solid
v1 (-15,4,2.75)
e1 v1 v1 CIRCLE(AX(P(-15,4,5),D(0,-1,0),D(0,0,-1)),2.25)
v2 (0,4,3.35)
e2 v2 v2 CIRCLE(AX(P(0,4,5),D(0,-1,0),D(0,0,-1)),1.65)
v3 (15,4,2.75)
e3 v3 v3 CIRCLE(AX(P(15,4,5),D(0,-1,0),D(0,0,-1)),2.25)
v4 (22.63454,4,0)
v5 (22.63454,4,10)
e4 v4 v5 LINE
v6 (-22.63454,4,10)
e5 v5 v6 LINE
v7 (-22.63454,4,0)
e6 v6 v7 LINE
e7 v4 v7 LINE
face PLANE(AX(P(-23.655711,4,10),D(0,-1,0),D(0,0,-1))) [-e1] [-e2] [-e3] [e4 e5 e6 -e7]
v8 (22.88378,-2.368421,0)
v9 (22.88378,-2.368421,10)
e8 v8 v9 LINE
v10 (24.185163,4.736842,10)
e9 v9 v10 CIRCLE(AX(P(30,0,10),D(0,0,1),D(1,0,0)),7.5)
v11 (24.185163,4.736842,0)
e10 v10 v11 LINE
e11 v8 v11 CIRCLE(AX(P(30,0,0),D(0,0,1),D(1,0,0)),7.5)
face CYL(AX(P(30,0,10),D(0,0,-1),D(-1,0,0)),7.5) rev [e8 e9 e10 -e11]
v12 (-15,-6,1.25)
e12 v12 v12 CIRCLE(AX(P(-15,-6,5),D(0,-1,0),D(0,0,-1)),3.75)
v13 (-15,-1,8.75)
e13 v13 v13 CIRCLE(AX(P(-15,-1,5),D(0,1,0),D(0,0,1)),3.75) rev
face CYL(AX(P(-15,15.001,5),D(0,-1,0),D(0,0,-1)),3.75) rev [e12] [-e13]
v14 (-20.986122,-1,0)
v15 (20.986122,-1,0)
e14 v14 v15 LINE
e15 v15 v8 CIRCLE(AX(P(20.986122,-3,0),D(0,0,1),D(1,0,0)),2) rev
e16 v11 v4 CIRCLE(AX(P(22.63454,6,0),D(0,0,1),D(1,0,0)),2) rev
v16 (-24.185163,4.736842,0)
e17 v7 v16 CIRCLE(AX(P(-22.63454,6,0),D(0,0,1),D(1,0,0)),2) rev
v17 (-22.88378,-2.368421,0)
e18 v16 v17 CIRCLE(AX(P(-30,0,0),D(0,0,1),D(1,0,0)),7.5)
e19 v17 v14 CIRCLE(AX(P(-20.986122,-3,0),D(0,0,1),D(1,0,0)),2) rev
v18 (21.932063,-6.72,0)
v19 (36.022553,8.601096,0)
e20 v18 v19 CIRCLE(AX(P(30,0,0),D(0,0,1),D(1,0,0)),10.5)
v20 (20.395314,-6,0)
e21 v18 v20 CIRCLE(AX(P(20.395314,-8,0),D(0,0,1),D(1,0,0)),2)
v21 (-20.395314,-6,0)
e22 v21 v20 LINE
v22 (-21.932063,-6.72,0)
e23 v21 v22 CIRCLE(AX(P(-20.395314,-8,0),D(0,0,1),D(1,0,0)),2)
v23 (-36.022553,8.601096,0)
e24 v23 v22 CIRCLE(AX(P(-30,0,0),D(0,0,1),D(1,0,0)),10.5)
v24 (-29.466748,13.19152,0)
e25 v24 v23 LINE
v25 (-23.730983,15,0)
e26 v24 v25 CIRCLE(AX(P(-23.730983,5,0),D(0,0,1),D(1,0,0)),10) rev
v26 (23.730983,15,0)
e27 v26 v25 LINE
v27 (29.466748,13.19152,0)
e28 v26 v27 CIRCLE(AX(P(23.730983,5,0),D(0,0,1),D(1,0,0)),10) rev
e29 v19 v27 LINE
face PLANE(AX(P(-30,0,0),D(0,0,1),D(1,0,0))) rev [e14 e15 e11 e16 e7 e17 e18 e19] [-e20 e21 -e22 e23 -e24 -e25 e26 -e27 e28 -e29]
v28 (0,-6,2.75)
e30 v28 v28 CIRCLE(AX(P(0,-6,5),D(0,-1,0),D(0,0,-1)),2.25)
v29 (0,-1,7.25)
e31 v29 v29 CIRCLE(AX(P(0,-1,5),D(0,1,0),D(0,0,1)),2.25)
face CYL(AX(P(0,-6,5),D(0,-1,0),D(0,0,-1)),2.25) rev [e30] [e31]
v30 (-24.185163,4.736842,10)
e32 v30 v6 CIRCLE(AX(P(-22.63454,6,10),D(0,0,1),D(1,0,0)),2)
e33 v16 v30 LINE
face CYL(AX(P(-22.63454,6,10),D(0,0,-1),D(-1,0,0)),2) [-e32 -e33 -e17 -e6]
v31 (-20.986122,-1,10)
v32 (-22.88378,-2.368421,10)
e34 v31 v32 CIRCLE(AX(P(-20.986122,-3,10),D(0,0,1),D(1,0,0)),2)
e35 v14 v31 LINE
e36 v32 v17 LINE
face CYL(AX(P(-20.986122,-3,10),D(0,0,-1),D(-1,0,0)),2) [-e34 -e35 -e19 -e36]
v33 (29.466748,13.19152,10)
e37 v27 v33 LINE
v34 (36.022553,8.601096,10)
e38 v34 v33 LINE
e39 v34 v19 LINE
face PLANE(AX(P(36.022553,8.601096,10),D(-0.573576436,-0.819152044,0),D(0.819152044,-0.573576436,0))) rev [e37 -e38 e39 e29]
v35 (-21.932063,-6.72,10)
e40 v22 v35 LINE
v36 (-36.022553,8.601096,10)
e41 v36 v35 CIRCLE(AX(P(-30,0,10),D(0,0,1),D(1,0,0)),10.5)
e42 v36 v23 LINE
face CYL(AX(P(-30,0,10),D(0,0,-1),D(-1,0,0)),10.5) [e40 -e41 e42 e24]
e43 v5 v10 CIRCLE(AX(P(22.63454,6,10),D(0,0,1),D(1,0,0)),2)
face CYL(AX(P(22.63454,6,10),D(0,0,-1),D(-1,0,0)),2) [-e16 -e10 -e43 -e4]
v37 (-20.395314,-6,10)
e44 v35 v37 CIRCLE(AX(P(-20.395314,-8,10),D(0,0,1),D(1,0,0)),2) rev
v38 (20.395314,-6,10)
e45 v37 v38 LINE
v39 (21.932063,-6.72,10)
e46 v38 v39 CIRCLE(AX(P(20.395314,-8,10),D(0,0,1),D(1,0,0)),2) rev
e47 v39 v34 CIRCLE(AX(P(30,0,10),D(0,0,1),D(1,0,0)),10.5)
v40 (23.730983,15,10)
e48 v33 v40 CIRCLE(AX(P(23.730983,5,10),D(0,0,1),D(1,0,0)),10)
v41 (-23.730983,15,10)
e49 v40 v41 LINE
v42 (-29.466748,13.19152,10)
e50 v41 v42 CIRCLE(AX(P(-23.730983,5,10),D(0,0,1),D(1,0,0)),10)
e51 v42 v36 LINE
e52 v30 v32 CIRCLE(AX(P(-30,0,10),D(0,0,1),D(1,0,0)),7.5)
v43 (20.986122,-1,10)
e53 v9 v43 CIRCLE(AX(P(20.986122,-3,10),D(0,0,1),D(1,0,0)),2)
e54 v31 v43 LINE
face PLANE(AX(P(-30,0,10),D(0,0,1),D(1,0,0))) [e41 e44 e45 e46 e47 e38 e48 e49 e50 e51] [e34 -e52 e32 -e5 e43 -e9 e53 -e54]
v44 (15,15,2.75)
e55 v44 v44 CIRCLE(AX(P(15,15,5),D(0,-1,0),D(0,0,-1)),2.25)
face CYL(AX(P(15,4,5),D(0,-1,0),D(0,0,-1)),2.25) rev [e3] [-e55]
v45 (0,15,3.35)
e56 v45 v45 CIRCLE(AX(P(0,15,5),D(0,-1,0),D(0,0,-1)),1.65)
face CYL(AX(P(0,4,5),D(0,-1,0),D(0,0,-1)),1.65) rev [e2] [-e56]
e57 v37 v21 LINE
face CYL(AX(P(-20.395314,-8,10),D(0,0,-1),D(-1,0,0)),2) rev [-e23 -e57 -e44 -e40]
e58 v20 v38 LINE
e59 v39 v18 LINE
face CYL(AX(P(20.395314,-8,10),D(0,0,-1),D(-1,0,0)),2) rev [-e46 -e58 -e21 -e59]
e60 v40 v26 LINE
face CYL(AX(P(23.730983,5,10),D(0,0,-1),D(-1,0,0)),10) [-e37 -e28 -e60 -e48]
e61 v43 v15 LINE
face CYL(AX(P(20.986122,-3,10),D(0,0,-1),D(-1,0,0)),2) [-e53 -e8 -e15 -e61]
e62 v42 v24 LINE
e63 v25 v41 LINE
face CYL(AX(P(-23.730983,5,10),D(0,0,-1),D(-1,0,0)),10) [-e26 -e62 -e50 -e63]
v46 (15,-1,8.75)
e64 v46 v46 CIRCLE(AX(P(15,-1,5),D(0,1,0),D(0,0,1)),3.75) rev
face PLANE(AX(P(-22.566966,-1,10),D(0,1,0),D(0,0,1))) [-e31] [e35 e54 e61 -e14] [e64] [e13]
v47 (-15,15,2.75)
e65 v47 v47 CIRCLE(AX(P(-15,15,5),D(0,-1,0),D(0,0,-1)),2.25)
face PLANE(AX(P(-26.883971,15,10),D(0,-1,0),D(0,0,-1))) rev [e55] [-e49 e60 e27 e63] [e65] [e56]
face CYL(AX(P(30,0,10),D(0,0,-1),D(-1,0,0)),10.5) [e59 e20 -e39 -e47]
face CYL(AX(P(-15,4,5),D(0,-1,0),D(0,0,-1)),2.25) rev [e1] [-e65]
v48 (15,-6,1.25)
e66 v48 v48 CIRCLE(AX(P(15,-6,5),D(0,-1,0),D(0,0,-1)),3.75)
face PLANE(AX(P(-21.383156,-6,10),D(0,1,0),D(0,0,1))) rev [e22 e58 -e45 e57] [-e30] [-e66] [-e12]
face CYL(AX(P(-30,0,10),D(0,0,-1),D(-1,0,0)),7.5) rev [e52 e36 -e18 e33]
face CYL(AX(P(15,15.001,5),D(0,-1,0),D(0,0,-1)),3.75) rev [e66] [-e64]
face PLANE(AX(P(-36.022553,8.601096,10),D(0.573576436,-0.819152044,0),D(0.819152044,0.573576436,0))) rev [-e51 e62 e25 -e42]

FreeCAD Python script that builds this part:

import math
import FreeCAD as App
import Part
import Sketcher

V = App.Vector
Q = App.Units.Quantity


def edges_at(feature, points):
    """Names of the edges that pass closest to the given points."""
    edges = feature.Shape.Edges
    near = lambda p: min(range(len(edges)), key=lambda i: edges[i].distToShape(Part.Vertex(*p))[0])
    return sorted({f"Edge{near(p) + 1}" for p in points})

doc = App.newDocument("Part")
body = doc.addObject("PartDesign::Body", "Body")

# Sketch on XY plane
sketch1 = body.newObject("Sketcher::SketchObject", "Sketch")
sketch1.AttachmentSupport = (doc.getObject("XY_Plane"), [""])
sketch1.MapMode = "FlatFace"
sketch1.addGeometry([
    Part.LineSegment(V(26.883971, 15, 0), V(-26.883971, 15, 0)),  # 0
    Part.LineSegment(V(-26.883971, 15, 0), V(-36.022553, 8.601096, 0)),  # 1
    Part.ArcOfCircle(Part.Circle(V(-30, 0, 0), V(0, 0, 1), 10.5), math.radians(125), math.radians(325.150095)),  # 2
    Part.LineSegment(V(-21.383156, -6, 0), V(21.383156, -6, 0)),  # 3
    Part.ArcOfCircle(Part.Circle(V(30, 0, 0), V(0, 0, 1), 10.5), math.radians(-145.150095), math.radians(55)),  # 4
    Part.LineSegment(V(36.022553, 8.601096, 0), V(26.883971, 15, 0)),  # 5
    Part.LineSegment(V(-23.655711, 4, 0), V(23.655711, 4, 0)),  # 6
    Part.ArcOfCircle(Part.Circle(V(30, 0, 0), V(0, 0, 1), 7.5), math.radians(-172.337744), math.radians(147.769047)),  # 7
    Part.LineSegment(V(22.566966, -1, 0), V(-22.566966, -1, 0)),  # 8
    Part.ArcOfCircle(Part.Circle(V(-30, 0, 0), V(0, 0, 1), 7.5), math.radians(32.230953), math.radians(352.337744)),  # 9
], False)
sketch1.addConstraint([
    Sketcher.Constraint("Coincident", 0, 2, 1, 1),
    Sketcher.Constraint("Tangent", 1, 2, 2, 1),
    Sketcher.Constraint("Coincident", 2, 2, 3, 1),
    Sketcher.Constraint("Coincident", 3, 2, 4, 1),
    Sketcher.Constraint("Tangent", 4, 2, 5, 1),
    Sketcher.Constraint("Coincident", 5, 2, 0, 1),
    Sketcher.Constraint("Coincident", 6, 2, 7, 2),
    Sketcher.Constraint("Coincident", 7, 1, 8, 1),
    Sketcher.Constraint("Coincident", 8, 2, 9, 2),
    Sketcher.Constraint("Coincident", 9, 1, 6, 1),
    Sketcher.Constraint("Horizontal", 0),
    Sketcher.Constraint("Horizontal", 3),
    Sketcher.Constraint("Horizontal", 6),
    Sketcher.Constraint("Horizontal", 8),
    Sketcher.Constraint("Coincident", 7, 3, 4, 3),
    Sketcher.Constraint("Coincident", 9, 3, 2, 3),
    Sketcher.Constraint("Equal", 2, 4),
    Sketcher.Constraint("Equal", 7, 9),
    Sketcher.Constraint("Symmetric", 2, 3, 4, 3, -1, 1),
    Sketcher.Constraint("Symmetric", 1, 2, 4, 2, -2),
    Sketcher.Constraint("Radius", 2, Q("10.5 mm")),
    Sketcher.Constraint("Radius", 7, Q("7.5 mm")),
    Sketcher.Constraint("Angle", 1, Q("-145 deg")),
    Sketcher.Constraint("DistanceX", 2, 3, -1, 1, Q("30 mm")),
    Sketcher.Constraint("DistanceY", -1, 1, 0, 2, Q("15 mm")),
    Sketcher.Constraint("DistanceY", 2, 2, -1, 1, Q("6 mm")),
    Sketcher.Constraint("DistanceY", -1, 1, 6, 2, Q("4 mm")),
    Sketcher.Constraint("DistanceY", 7, 1, -1, 1, Q("1 mm")),
])
pad1 = body.newObject("PartDesign::Pad", "Pad")
pad1.Profile = sketch1
pad1.Length = 10

# Sketch on XZ plane
sketch2 = body.newObject("Sketcher::SketchObject", "Sketch001")
sketch2.AttachmentSupport = (doc.getObject("XZ_Plane"), [""])
sketch2.MapMode = "FlatFace"
sketch2.AttachmentOffset = App.Placement(V(0, 0, 6), App.Rotation())
sketch2.addGeometry(Part.Circle(V(-15, 5, 0), V(0, 0, 1), 3.75), False)
sketch2.addConstraint([
    Sketcher.Constraint("Diameter", 0, Q("7.5 mm")),
    Sketcher.Constraint("DistanceX", 0, 3, -1, 1, Q("15 mm")),
    Sketcher.Constraint("DistanceY", -1, 1, 0, 3, Q("5 mm")),
])
pocket1 = body.newObject("PartDesign::Pocket", "Pocket")
pocket1.Profile = sketch2
pocket1.Type = "UpToFirst"

# Sketch on XZ plane
sketch3 = body.newObject("Sketcher::SketchObject", "Sketch002")
sketch3.AttachmentSupport = (doc.getObject("XZ_Plane"), [""])
sketch3.MapMode = "FlatFace"
sketch3.AttachmentOffset = App.Placement(V(0, 0, 6), App.Rotation())
sketch3.addGeometry(Part.Circle(V(15, 5, 0), V(0, 0, 1), 3.75), False)
sketch3.addConstraint([
    Sketcher.Constraint("Diameter", 0, Q("7.5 mm")),
    Sketcher.Constraint("DistanceX", -1, 1, 0, 3, Q("15 mm")),
    Sketcher.Constraint("DistanceY", -1, 1, 0, 3, Q("5 mm")),
])
pocket2 = body.newObject("PartDesign::Pocket", "Pocket001")
pocket2.Profile = sketch3
pocket2.Type = "UpToFirst"

# Sketch on XZ plane
sketch4 = body.newObject("Sketcher::SketchObject", "Sketch003")
sketch4.AttachmentSupport = (doc.getObject("XZ_Plane"), [""])
sketch4.MapMode = "FlatFace"
sketch4.AttachmentOffset = App.Placement(V(0, 0, -4), App.Rotation())
sketch4.addGeometry([
    Part.Circle(V(15, 5, 0), V(0, 0, 1), 2.25),
    Part.Circle(V(-15, 5, 0), V(0, 0, 1), 2.25),
], False)
sketch4.addConstraint([
    Sketcher.Constraint("Equal", 0, 1),
    Sketcher.Constraint("Symmetric", 0, 3, 1, 3, -2),
    Sketcher.Constraint("Diameter", 0, Q("4.5 mm")),
    Sketcher.Constraint("DistanceX", -1, 1, 0, 3, Q("15 mm")),
    Sketcher.Constraint("DistanceY", -1, 1, 0, 3, Q("5 mm")),
])
doc.recompute()
hole = body.newObject("PartDesign::Hole", "Hole")
hole.Profile = sketch4
hole.ThreadType = "None"
hole.Diameter = 4.5
hole.DepthType = "ThroughAll"

# Sketch on XZ plane
sketch5 = body.newObject("Sketcher::SketchObject", "Sketch004")
sketch5.AttachmentSupport = (doc.getObject("XZ_Plane"), [""])
sketch5.MapMode = "FlatFace"
sketch5.AttachmentOffset = App.Placement(V(0, 0, 6), App.Rotation())
sketch5.addGeometry(Part.Circle(V(0, 5, 0), V(0, 0, 1), 2.25), False)
sketch5.addConstraint([
    Sketcher.Constraint("PointOnObject", 0, 3, -2),
    Sketcher.Constraint("Diameter", 0, Q("4.5 mm")),
    Sketcher.Constraint("DistanceY", -1, 1, 0, 3, Q("5 mm")),
])
doc.recompute()
hole2 = body.newObject("PartDesign::Hole", "Hole001")
hole2.Profile = sketch5
hole2.ThreadType = "None"
hole2.Diameter = 4.5
hole2.DepthType = "Dimension"
hole2.Depth = 5
hole2.DrillPoint = "Flat"

# Sketch on XZ plane
sketch6 = body.newObject("Sketcher::SketchObject", "Sketch005")
sketch6.AttachmentSupport = (doc.getObject("XZ_Plane"), [""])
sketch6.MapMode = "FlatFace"
sketch6.AttachmentOffset = App.Placement(V(0, 0, -4), App.Rotation())
sketch6.addGeometry(Part.Circle(V(0, 5, 0), V(0, 0, 1), 1.65), False)
sketch6.addConstraint([
    Sketcher.Constraint("PointOnObject", 0, 3, -2),
    Sketcher.Constraint("Diameter", 0, Q("3.3 mm")),
    Sketcher.Constraint("DistanceY", -1, 1, 0, 3, Q("5 mm")),
])
doc.recompute()
hole3 = body.newObject("PartDesign::Hole", "Hole002")
hole3.Profile = sketch6
hole3.ThreadType = "None"
hole3.Diameter = 3.3
hole3.DepthType = "ThroughAll"
doc.recompute()

fillet = body.newObject("PartDesign::Fillet", "Fillet")
fillet.Base = (hole3, edges_at(hole3, [(-26.884, 15, 5), (26.884, 15, 5)]))
fillet.Radius = 10
doc.recompute()

fillet2 = body.newObject("PartDesign::Fillet", "Fillet001")
fillet2.Base = (fillet, edges_at(fillet, [
    (21.383, -6, 5),
    (-21.383, -6, 5),
    (-23.656, 4, 5),
    (-22.567, -1, 5),
    (22.567, -1, 5),
    (23.656, 4, 5),
]))
fillet2.Radius = 2

doc.recompute()
